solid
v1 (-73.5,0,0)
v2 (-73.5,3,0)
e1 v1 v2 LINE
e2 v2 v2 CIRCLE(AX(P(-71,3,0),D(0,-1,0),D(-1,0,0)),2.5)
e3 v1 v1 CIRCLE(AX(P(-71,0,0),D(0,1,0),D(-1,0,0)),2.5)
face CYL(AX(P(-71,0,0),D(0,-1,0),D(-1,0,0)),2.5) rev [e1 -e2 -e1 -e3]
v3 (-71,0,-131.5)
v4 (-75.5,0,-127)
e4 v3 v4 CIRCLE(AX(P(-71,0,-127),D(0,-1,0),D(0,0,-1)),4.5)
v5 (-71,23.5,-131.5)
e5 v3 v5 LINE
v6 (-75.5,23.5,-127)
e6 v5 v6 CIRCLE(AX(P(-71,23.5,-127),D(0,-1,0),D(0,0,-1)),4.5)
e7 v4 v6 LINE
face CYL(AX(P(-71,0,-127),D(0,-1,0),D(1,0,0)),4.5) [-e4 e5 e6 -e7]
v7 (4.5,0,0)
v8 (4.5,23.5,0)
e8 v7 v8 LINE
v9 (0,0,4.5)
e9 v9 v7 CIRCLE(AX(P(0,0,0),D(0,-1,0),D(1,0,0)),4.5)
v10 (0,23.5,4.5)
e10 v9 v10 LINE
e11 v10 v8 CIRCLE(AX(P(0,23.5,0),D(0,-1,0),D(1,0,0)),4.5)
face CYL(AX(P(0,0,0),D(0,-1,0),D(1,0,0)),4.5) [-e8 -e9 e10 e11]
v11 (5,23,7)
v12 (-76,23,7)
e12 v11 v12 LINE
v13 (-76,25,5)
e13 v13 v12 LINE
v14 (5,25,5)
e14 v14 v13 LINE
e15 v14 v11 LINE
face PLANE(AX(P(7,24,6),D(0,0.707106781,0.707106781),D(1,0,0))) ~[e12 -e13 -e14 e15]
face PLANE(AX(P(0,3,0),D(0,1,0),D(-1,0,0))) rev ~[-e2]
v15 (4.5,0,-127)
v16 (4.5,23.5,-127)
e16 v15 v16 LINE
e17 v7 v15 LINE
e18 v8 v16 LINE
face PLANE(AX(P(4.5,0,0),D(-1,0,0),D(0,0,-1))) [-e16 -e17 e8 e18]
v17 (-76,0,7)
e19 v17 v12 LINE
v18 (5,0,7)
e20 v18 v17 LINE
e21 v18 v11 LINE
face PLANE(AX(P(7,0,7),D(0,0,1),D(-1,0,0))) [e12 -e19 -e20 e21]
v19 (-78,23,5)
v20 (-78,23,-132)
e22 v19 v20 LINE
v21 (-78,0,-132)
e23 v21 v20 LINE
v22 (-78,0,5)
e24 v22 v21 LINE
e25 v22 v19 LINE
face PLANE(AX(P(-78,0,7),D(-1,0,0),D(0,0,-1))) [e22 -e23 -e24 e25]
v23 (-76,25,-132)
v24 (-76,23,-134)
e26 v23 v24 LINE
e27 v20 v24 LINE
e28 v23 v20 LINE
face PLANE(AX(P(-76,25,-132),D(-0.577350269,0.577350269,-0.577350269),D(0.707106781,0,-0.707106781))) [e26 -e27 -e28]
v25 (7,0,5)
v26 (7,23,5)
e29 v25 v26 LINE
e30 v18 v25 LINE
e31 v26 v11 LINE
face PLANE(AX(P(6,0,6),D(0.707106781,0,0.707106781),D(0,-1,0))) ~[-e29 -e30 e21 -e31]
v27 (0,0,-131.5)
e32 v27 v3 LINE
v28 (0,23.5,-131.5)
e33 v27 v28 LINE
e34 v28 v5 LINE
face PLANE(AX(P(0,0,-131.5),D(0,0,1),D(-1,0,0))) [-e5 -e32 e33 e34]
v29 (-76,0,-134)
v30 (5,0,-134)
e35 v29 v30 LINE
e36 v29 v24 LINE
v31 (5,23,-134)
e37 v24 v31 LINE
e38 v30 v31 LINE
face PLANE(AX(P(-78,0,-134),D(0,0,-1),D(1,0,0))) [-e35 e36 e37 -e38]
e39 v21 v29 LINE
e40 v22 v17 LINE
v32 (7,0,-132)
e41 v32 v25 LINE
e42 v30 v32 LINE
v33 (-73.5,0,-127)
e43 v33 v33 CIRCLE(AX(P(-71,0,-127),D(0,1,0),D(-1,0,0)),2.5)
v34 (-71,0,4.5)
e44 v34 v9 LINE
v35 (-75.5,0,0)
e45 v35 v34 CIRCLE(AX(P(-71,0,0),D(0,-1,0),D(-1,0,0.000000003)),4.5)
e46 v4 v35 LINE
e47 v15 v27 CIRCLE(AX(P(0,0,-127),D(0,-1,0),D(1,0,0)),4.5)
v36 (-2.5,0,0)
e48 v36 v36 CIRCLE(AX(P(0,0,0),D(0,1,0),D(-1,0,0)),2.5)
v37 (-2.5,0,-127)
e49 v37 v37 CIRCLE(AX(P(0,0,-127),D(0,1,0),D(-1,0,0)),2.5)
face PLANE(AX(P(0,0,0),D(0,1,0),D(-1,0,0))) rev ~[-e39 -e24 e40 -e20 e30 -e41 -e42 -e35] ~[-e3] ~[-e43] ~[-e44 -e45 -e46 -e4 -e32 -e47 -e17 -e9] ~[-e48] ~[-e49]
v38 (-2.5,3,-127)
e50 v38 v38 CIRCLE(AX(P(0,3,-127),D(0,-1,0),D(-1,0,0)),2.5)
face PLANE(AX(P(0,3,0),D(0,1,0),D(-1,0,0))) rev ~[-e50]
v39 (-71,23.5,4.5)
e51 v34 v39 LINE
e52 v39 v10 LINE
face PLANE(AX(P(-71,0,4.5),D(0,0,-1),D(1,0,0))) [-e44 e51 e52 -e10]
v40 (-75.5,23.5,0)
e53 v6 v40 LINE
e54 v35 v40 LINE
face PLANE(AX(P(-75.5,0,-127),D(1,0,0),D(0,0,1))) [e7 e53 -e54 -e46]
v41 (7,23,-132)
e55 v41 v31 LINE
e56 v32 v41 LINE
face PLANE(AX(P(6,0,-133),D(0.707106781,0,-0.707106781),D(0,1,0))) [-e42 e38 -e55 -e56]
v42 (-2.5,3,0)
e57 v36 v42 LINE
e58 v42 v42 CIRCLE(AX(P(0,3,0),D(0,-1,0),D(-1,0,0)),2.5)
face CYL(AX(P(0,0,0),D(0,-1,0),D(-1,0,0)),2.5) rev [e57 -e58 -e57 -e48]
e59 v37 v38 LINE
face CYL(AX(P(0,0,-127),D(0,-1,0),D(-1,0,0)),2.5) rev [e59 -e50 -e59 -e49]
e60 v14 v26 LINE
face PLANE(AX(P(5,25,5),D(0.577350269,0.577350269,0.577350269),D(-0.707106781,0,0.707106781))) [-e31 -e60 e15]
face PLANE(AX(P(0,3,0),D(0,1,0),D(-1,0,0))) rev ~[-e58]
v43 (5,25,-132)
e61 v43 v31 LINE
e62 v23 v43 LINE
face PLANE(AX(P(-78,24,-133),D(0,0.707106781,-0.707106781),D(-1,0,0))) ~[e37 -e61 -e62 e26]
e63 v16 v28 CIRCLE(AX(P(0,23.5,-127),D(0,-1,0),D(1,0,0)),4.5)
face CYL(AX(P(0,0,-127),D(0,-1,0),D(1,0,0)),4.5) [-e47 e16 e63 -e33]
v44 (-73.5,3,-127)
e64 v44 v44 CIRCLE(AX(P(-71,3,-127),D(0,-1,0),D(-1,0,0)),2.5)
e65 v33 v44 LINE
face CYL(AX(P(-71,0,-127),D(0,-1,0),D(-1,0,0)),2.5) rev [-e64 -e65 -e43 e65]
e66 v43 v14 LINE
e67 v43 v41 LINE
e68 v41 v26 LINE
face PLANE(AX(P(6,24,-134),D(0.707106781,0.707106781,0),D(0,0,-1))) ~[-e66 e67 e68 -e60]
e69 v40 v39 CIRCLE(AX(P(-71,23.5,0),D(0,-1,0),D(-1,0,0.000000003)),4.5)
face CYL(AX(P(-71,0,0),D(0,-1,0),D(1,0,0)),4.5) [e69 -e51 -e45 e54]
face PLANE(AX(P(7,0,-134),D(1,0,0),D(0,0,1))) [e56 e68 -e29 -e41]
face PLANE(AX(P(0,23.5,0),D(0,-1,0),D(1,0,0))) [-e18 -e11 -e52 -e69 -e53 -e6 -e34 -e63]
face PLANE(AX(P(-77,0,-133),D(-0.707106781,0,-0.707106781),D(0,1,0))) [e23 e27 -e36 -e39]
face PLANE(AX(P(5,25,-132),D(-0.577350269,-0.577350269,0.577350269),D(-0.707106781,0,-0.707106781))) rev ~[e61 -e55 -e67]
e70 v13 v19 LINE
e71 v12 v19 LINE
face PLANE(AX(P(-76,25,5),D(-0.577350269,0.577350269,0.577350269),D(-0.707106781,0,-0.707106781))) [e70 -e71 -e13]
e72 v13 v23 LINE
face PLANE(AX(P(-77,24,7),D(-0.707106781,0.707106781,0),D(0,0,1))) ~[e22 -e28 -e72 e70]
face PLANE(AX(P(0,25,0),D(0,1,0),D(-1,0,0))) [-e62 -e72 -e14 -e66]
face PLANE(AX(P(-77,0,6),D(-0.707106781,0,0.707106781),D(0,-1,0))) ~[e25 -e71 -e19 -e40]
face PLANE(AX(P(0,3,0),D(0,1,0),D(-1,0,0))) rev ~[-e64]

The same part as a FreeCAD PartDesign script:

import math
import FreeCAD as App
import Part
import Sketcher
from FreeCAD import Vector
Q = App.Units.Quantity


def edges_at(feature, points):
    """Names of the edges that pass closest to the given points."""
    edges = feature.Shape.Edges
    near = lambda p: min(range(len(edges)), key=lambda i: edges[i].distToShape(Part.Vertex(*p))[0])
    return sorted({f"Edge{near(p) + 1}" for p in points})

doc = App.newDocument("Part")
body = doc.addObject("PartDesign::Body", "Body")

# Sketch on XZ plane
sketch1 = body.newObject("Sketcher::SketchObject", "Sketch")
sketch1.AttachmentSupport = (doc.getObject("XZ_Plane"), [""])
sketch1.MapMode = "FlatFace"
sketch1.addGeometry(Part.LineSegment(Vector(-78, -134, 0), Vector(-78, 7, 0)), False)
sketch1.addGeometry(Part.LineSegment(Vector(-78, 7, 0), Vector(7, 7, 0)), False)
sketch1.addGeometry(Part.LineSegment(Vector(7, 7, 0), Vector(7, -134, 0)), False)
sketch1.addGeometry(Part.LineSegment(Vector(7, -134, 0), Vector(-78, -134, 0)), False)
sketch1.addConstraint(Sketcher.Constraint("Coincident", 0, 2, 1, 1))
sketch1.addConstraint(Sketcher.Constraint("Coincident", 1, 2, 2, 1))
sketch1.addConstraint(Sketcher.Constraint("Coincident", 2, 2, 3, 1))
sketch1.addConstraint(Sketcher.Constraint("Coincident", 3, 2, 0, 1))
sketch1.addConstraint(Sketcher.Constraint("Vertical", 0))
sketch1.addConstraint(Sketcher.Constraint("Horizontal", 1))
sketch1.addConstraint(Sketcher.Constraint("Vertical", 2))
sketch1.addConstraint(Sketcher.Constraint("Horizontal", 3))
sketch1.addConstraint(Sketcher.Constraint("DistanceY", -1, 1, 0, 2, Q("7 mm")))
sketch1.addConstraint(Sketcher.Constraint("DistanceX", -1, 1, 1, 2, Q("7 mm")))
sketch1.addConstraint(Sketcher.Constraint("DistanceX", 1, 1, 1, 2, Q("85 mm")))
sketch1.addConstraint(Sketcher.Constraint("DistanceY", 0, 1, 0, 2, Q("141 mm")))
pad1 = body.newObject("PartDesign::Pad", "Pad")
pad1.Profile = sketch1
pad1.Length = 25
pad1.Reversed = True

# Sketch on XZ plane
sketch2 = body.newObject("Sketcher::SketchObject", "Sketch001")
sketch2.AttachmentSupport = (doc.getObject("XZ_Plane"), [""])
sketch2.MapMode = "FlatFace"
sketch2.addGeometry(Part.Circle(Vector(0, 0, 0), Vector(0, 0, 1), 2.5), False)
sketch2.addGeometry(Part.Circle(Vector(0, -127, 0), Vector(0, 0, 1), 2.5), False)
sketch2.addGeometry(Part.Circle(Vector(-71, 0, 0), Vector(0, 0, 1), 2.5), False)
sketch2.addGeometry(Part.Circle(Vector(-71, -127, 0), Vector(0, 0, 1), 2.5), False)
sketch2.addConstraint(Sketcher.Constraint("Coincident", 0, 3, -1, 1))
sketch2.addConstraint(Sketcher.Constraint("Equal", 0, 1))
sketch2.addConstraint(Sketcher.Constraint("Equal", 1, 2))
sketch2.addConstraint(Sketcher.Constraint("Equal", 2, 3))
sketch2.addConstraint(Sketcher.Constraint("PointOnObject", 1, 3, -2))
sketch2.addConstraint(Sketcher.Constraint("PointOnObject", 2, 3, -1))
sketch2.addConstraint(Sketcher.Constraint("Horizontal", 1, 3, 3, 3))
sketch2.addConstraint(Sketcher.Constraint("Vertical", 2, 3, 3, 3))
sketch2.addConstraint(Sketcher.Constraint("Diameter", 0, Q("5 mm")))
sketch2.addConstraint(Sketcher.Constraint("DistanceY", 1, 3, -1, 1, Q("127 mm")))
sketch2.addConstraint(Sketcher.Constraint("DistanceX", 2, 3, -1, 1, Q("71 mm")))
pocket1 = body.newObject("PartDesign::Pocket", "Pocket")
pocket1.Profile = sketch2
pocket1.Length = 3

# Sketch on XZ plane
sketch3 = body.newObject("Sketcher::SketchObject", "Sketch002")
sketch3.AttachmentSupport = (doc.getObject("XZ_Plane"), [""])
sketch3.MapMode = "FlatFace"
sketch3.addGeometry(Part.ArcOfCircle(Part.Circle(Vector(-71, -127, 0), Vector(0, 0, 1), 4.5), math.radians(-90), math.radians(180)), False)
sketch3.addGeometry(Part.LineSegment(Vector(-71, -131.5, 0), Vector(0, -131.5, 0)), False)
sketch3.addGeometry(Part.ArcOfCircle(Part.Circle(Vector(0, -127, 0), Vector(0, 0, 1), 4.5), math.radians(0), math.radians(270)), False)
sketch3.addGeometry(Part.LineSegment(Vector(4.5, -127, 0), Vector(4.5, 0, 0)), False)
sketch3.addGeometry(Part.ArcOfCircle(Part.Circle(Vector(0, 0, 0), Vector(0, 0, 1), 4.5), math.radians(90), math.radians(360)), False)
sketch3.addGeometry(Part.LineSegment(Vector(0, 4.5, 0), Vector(-71, 4.5, 0)), False)
sketch3.addGeometry(Part.ArcOfCircle(Part.Circle(Vector(-71, 0, 0), Vector(0, 0, 1), 4.5), math.radians(180), math.radians(450)), False)
sketch3.addGeometry(Part.LineSegment(Vector(-75.5, 0, 0), Vector(-75.5, -127, 0)), False)
sketch3.addConstraint(Sketcher.Constraint("Tangent", 0, 1, 1, 1))
sketch3.addConstraint(Sketcher.Constraint("Tangent", 1, 2, 2, 2))
sketch3.addConstraint(Sketcher.Constraint("Tangent", 2, 1, 3, 1))
sketch3.addConstraint(Sketcher.Constraint("Tangent", 3, 2, 4, 2))
sketch3.addConstraint(Sketcher.Constraint("Tangent", 4, 1, 5, 1))
sketch3.addConstraint(Sketcher.Constraint("Tangent", 5, 2, 6, 2))
sketch3.addConstraint(Sketcher.Constraint("Tangent", 6, 1, 7, 1))
sketch3.addConstraint(Sketcher.Constraint("Tangent", 7, 2, 0, 2))
sketch3.addConstraint(Sketcher.Constraint("Horizontal", 1))
sketch3.addConstraint(Sketcher.Constraint("Vertical", 3))
sketch3.addConstraint(Sketcher.Constraint("Horizontal", 5))
sketch3.addConstraint(Sketcher.Constraint("Vertical", 7))
sketch3.addConstraint(Sketcher.Constraint("Coincident", 4, 3, -1, 1))
sketch3.addConstraint(Sketcher.Constraint("Equal", 0, 2))
sketch3.addConstraint(Sketcher.Constraint("Equal", 2, 4))
sketch3.addConstraint(Sketcher.Constraint("Equal", 4, 6))
sketch3.addConstraint(Sketcher.Constraint("Radius", 0, Q("4.5 mm")))
sketch3.addConstraint(Sketcher.Constraint("DistanceX", 1, 1, 1, 2, Q("71 mm")))
sketch3.addConstraint(Sketcher.Constraint("DistanceY", 3, 1, 3, 2, Q("127 mm")))
pocket2 = body.newObject("PartDesign::Pocket", "Pocket001")
pocket2.Profile = sketch3
pocket2.Length = 23.5
doc.recompute()

chamfer = body.newObject("PartDesign::Chamfer", "Chamfer")
chamfer.Base = (pocket2, edges_at(pocket2, [
    (-78, 12.5, -134),
    (-78, 12.5, 7),
    (7, 12.5, -134),
    (7, 12.5, 7),
    (7, 25, -63.5),
    (-35.5, 25, 7),
    (-78, 25, -63.5),
    (-35.5, 25, -134),
]))
chamfer.Size = 2

doc.recompute()
